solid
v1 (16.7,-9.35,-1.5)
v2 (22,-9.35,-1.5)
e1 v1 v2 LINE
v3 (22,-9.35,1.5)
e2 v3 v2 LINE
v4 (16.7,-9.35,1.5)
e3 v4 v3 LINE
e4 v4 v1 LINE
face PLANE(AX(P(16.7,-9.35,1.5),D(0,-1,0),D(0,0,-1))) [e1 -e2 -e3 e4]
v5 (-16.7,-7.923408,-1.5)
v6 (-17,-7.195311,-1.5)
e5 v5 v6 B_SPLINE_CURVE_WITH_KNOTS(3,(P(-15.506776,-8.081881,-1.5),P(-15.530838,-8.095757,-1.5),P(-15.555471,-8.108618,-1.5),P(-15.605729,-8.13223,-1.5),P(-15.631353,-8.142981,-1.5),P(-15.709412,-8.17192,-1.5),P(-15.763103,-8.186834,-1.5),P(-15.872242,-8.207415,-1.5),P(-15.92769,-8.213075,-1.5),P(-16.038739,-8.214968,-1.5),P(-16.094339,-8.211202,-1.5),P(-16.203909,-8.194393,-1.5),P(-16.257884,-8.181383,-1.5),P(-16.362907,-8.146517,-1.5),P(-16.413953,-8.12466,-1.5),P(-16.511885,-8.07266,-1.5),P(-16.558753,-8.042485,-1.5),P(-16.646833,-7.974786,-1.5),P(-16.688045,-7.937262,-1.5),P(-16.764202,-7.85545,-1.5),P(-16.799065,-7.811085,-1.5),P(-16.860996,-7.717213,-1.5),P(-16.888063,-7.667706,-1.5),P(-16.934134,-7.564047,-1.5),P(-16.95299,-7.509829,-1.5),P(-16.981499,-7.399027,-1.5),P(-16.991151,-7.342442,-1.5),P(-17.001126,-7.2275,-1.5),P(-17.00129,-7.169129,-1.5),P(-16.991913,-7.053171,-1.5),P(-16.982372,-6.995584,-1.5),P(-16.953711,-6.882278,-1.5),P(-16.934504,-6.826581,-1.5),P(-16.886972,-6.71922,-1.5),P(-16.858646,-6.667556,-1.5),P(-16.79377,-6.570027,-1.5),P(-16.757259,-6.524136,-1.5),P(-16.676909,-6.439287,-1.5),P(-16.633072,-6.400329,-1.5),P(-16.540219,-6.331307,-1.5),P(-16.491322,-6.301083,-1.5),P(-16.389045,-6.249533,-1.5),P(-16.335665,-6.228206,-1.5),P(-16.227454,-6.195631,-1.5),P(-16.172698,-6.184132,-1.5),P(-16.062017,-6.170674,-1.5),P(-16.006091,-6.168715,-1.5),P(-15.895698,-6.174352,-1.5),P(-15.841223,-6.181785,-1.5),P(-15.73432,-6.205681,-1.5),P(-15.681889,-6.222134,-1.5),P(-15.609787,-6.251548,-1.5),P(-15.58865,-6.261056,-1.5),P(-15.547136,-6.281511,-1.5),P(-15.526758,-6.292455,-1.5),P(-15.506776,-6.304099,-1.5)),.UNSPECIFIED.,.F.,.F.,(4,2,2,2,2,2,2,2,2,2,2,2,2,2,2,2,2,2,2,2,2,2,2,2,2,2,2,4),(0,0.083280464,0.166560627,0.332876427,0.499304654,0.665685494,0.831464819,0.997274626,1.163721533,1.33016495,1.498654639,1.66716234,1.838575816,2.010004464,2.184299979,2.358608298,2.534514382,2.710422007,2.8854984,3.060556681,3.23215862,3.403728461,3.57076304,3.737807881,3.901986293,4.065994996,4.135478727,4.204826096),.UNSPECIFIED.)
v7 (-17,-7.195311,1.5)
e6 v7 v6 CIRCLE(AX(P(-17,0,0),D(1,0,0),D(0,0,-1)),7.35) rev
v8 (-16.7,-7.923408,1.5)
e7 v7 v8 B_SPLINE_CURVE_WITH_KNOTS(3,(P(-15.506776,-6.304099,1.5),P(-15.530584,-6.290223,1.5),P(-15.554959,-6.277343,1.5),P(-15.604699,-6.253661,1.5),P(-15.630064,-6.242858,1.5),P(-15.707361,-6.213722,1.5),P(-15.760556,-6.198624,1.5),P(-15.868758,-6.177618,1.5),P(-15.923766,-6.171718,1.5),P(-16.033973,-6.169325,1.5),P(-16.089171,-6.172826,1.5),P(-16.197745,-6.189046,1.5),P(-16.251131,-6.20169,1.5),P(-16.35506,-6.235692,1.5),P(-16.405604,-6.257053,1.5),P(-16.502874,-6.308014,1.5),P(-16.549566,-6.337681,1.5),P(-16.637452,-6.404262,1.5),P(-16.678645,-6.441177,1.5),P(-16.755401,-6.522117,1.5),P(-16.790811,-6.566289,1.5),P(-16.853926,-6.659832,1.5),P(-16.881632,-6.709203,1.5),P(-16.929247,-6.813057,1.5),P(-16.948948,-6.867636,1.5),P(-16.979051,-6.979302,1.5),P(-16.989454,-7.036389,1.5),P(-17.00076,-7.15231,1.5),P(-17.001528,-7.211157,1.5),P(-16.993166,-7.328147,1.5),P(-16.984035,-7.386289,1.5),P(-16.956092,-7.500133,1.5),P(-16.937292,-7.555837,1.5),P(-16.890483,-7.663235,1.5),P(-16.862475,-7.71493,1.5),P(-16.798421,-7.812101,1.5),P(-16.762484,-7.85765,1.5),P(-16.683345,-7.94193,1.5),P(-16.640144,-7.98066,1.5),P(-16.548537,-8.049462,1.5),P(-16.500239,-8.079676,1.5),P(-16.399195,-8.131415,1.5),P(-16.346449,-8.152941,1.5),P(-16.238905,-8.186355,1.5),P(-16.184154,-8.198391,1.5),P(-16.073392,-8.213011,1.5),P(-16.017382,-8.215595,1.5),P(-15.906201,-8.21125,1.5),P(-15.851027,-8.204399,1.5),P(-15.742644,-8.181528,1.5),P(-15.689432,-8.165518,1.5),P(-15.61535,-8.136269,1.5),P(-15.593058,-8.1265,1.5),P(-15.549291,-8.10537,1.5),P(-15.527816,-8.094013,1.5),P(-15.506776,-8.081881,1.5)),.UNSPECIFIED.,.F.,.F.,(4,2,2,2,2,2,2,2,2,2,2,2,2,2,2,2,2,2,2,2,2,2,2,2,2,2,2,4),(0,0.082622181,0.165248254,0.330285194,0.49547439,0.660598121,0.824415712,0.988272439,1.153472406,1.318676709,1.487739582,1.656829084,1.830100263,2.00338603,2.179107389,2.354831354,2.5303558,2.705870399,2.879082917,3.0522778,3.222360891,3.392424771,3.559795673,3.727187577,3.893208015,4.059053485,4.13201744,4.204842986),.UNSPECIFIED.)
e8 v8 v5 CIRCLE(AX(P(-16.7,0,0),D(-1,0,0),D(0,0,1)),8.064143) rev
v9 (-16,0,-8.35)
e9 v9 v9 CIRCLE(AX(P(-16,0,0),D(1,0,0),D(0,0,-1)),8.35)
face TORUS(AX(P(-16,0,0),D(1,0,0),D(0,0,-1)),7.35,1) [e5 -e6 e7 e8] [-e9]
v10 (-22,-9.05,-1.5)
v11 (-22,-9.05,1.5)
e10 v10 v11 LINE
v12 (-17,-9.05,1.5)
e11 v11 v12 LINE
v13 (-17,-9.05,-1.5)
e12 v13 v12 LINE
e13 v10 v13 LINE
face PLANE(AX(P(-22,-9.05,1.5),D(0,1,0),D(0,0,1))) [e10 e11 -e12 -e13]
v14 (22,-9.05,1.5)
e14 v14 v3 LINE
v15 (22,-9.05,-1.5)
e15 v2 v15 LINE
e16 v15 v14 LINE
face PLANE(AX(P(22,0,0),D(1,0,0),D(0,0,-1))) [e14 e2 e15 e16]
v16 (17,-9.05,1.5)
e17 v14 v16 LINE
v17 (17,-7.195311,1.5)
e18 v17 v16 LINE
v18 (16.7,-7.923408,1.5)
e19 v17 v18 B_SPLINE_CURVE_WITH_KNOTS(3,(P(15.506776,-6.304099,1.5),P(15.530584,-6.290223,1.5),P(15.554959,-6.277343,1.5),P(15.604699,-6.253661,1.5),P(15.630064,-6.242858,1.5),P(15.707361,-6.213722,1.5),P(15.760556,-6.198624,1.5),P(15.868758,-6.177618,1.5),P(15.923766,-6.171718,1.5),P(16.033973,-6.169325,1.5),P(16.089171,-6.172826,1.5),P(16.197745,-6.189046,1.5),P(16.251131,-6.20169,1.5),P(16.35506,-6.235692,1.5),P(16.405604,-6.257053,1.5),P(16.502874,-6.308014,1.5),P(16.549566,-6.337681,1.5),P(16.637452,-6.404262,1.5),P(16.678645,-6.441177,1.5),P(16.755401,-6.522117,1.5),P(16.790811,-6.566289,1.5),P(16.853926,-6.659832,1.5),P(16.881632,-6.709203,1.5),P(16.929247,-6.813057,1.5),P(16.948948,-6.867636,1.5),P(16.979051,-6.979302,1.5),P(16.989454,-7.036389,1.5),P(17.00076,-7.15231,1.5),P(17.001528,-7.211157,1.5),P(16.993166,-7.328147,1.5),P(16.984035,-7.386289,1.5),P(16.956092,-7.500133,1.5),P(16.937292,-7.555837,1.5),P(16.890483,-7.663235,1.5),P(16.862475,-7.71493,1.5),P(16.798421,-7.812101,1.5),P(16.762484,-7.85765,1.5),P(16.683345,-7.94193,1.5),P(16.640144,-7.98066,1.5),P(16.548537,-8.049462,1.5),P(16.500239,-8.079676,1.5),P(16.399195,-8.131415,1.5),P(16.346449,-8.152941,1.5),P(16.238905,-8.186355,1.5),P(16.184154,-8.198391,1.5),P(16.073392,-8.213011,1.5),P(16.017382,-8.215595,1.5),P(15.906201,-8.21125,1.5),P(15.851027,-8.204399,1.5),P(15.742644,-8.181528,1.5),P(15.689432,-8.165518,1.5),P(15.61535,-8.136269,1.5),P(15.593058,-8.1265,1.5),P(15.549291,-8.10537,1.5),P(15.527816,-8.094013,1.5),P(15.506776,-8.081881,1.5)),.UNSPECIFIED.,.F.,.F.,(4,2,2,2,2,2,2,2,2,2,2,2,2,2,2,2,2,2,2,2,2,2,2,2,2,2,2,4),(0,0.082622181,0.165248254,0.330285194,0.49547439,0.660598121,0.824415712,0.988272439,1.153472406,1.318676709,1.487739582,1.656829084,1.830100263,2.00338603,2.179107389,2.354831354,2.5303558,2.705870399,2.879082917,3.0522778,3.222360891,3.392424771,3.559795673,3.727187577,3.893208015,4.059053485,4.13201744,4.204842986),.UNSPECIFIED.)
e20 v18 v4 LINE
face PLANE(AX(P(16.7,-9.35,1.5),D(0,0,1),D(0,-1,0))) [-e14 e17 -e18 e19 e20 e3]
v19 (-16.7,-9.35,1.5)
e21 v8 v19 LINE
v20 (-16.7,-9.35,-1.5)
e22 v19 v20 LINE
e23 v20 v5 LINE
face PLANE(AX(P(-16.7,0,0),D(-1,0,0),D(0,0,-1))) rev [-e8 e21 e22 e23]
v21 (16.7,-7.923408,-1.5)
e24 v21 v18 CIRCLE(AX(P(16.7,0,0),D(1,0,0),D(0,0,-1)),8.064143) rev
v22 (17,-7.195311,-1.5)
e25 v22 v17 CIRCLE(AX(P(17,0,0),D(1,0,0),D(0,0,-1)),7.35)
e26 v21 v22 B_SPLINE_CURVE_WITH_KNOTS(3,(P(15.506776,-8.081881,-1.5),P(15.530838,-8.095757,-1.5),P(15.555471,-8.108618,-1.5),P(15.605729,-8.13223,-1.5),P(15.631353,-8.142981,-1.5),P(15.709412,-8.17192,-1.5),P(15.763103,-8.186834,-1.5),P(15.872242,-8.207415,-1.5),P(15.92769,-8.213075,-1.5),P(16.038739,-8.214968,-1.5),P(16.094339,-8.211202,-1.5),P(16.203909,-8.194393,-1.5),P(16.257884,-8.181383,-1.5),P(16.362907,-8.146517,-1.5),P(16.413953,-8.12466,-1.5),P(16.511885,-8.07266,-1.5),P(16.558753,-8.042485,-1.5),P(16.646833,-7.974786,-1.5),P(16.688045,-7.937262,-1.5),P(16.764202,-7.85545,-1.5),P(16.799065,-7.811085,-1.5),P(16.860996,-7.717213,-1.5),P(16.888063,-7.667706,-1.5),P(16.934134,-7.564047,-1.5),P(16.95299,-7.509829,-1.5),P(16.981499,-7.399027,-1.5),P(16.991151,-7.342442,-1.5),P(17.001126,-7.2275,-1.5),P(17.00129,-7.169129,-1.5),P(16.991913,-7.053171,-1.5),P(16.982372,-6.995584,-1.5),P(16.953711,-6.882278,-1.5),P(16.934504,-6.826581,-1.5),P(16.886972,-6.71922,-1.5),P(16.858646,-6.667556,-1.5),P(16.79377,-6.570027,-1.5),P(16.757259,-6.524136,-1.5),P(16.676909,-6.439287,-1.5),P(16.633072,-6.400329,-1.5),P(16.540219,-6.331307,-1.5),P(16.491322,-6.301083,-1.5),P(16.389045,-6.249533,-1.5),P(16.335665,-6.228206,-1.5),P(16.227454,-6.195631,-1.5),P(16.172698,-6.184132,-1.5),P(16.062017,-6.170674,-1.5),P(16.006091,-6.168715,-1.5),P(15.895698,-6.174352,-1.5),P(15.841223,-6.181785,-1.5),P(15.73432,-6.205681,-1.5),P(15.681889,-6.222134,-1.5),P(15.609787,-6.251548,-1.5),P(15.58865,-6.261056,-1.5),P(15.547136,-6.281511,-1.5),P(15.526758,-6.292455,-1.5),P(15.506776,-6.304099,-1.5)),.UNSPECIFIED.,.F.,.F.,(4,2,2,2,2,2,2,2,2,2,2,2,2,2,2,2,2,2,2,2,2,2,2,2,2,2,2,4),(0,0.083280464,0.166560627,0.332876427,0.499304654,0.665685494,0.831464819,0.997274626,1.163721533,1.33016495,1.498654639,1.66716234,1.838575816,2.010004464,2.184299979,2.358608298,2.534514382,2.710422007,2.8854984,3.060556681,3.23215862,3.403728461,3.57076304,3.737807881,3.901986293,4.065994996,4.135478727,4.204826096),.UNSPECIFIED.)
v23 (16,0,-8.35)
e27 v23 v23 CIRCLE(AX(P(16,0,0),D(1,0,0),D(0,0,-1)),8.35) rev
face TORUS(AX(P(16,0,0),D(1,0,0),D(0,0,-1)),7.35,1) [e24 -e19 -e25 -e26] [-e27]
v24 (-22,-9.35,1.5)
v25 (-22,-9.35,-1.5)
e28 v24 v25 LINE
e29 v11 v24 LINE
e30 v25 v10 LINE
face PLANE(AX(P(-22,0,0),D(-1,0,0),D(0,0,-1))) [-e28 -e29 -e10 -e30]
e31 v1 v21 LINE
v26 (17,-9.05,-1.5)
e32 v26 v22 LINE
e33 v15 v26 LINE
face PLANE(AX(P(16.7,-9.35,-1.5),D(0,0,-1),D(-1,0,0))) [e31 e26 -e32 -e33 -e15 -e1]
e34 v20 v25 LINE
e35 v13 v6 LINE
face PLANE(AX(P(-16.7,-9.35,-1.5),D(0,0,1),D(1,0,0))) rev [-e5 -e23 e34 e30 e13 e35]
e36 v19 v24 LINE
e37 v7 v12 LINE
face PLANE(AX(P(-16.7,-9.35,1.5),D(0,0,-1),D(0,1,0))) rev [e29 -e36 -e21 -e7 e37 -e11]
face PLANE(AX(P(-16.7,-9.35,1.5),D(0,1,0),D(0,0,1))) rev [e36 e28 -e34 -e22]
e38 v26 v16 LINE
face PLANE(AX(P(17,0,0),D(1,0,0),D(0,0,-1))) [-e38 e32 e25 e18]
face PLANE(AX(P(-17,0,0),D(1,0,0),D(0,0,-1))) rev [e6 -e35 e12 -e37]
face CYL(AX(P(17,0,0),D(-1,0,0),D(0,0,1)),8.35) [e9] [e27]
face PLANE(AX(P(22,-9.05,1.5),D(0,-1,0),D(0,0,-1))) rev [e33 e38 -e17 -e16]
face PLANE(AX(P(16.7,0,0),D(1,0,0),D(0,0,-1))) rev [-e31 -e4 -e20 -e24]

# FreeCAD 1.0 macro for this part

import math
import FreeCAD as App
import Part
import Sketcher
Q = App.Units.Quantity


def edges_at(feature, points):
    """Names of the edges that pass closest to the given points."""
    edges = feature.Shape.Edges
    near = lambda p: min(range(len(edges)), key=lambda i: edges[i].distToShape(Part.Vertex(*p))[0])
    return sorted({f"Edge{near(p) + 1}" for p in points})


def add_polygon(sketch, points):
    """Adds a closed chain of lines whose ends are joined by coincident constraints."""
    first, n = sketch.GeometryCount, len(points)
    for a, b in zip(points, points[1:] + points[:1]):
        sketch.addGeometry(Part.LineSegment(App.Vector(*a, 0), App.Vector(*b, 0)), False)
    for i in range(n):
        sketch.addConstraint(Sketcher.Constraint("Coincident", first + i, 2, first + (i + 1) % n, 1))

doc = App.newDocument("Part")
params = doc.addObject("Spreadsheet::Sheet", "Params")
for row, (alias, value) in enumerate([
    ("sketch1_diameter", "16.7 mm"),
    ("pad1_length", "34 mm"),
    ("fillet_radius", "1 mm"),
    ("sketch2_height", "3 mm"),
    ("sketch2_radius", "7.35 mm"),
    ("pad2_length", "0.3 mm"),
    ("sketch3_height", "3 mm"),
    ("sketch3_width", "0.3 mm"),
    ("pad3_length", "5 mm"),
], start=1):
    params.set(f"A{row}", alias)
    params.set(f"B{row}", "=" + value)
    params.setAlias(f"B{row}", alias)

body = doc.addObject("PartDesign::Body", "Body")

# Sketch on YZ plane
sketch1 = body.newObject("Sketcher::SketchObject", "Sketch")
sketch1.AttachmentSupport = (doc.getObject("YZ_Plane"), [""])
sketch1.MapMode = "FlatFace"
sketch1.addGeometry(Part.Circle(App.Vector(0, 0, 0), App.Vector(0, 0, 1), 8), False)
sketch1.addConstraint([
    Sketcher.Constraint("Coincident", 0, 3, -1, 1),
    Sketcher.Constraint("Diameter", 0, Q("16.7 mm")),
])
sketch1.setExpression("Constraints[1]", "Params.sketch1_diameter")
pad1 = body.newObject("PartDesign::Pad", "Pad")
pad1.Profile = sketch1
pad1.setExpression("Length", "Params.pad1_length")
pad1.Midplane = True
doc.recompute()

fillet = body.newObject("PartDesign::Fillet", "Fillet")
fillet.Base = (pad1, edges_at(pad1, [(-17, 0, 8.35), (17, 0, 8.35)]))
fillet.setExpression("Radius", "Params.fillet_radius")

# Sketch on YZ plane
sketch2 = body.newObject("Sketcher::SketchObject", "Sketch001")
sketch2.AttachmentSupport = (doc.getObject("YZ_Plane"), [""])
sketch2.MapMode = "FlatFace"
sketch2.AttachmentOffset = App.Placement(App.Vector(0, 0, 17), App.Rotation())
sketch2.addGeometry([
    Part.LineSegment(App.Vector(-9.3, 1.5, 0), App.Vector(-9.3, -1.5, 0)),
    Part.LineSegment(App.Vector(-9.3, -1.5, 0), App.Vector(-7.2, -1.5, 0)),
    Part.ArcOfCircle(Part.Circle(App.Vector(0, 0, 0), App.Vector(0, 0, 1), 7.3), math.radians(168), math.radians(192)),
    Part.LineSegment(App.Vector(-7.2, 1.5, 0), App.Vector(-9.3, 1.5, 0)),
], False)
sketch2.addConstraint([
    Sketcher.Constraint("Coincident", 0, 2, 1, 1),
    Sketcher.Constraint("Coincident", 1, 2, 2, 2),
    Sketcher.Constraint("Coincident", 2, 1, 3, 1),
    Sketcher.Constraint("Coincident", 3, 2, 0, 1),
    Sketcher.Constraint("Vertical", 0),
    Sketcher.Constraint("Horizontal", 1),
    Sketcher.Constraint("Horizontal", 3),
    Sketcher.Constraint("Coincident", 2, 3, -1, 1),
    Sketcher.Constraint("Vertical", 1, 2, 2, 1),
    Sketcher.Constraint("DistanceY", 0, 2, 0, 1, Q("3 mm")),
    Sketcher.Constraint("Radius", 2, Q("7.35 mm")),
    Sketcher.Constraint("DistanceX", 0, 2, -1, 1, Q("9.35 mm")),
])
sketch2.setExpression("Constraints[9]", "Params.sketch2_height")
sketch2.setExpression("Constraints[10]", "Params.sketch2_radius")
pad2 = body.newObject("PartDesign::Pad", "Pad001")
pad2.Profile = sketch2
pad2.setExpression("Length", "Params.pad2_length")
pad2.Reversed = True

# Sketch on YZ plane
sketch3 = body.newObject("Sketcher::SketchObject", "Sketch002")
sketch3.AttachmentSupport = (doc.getObject("YZ_Plane"), [""])
sketch3.MapMode = "FlatFace"
sketch3.AttachmentOffset = App.Placement(App.Vector(0, 0, 17), App.Rotation())
add_polygon(sketch3, [(-9.05, 1.5), (-9.35, 1.5), (-9.35, -1.5), (-9.05, -1.5)])  # lines 0-3
sketch3.addConstraint([
    Sketcher.Constraint("Horizontal", 0),
    Sketcher.Constraint("Vertical", 1),
    Sketcher.Constraint("Horizontal", 2),
    Sketcher.Constraint("Vertical", 3),
    Sketcher.Constraint("DistanceY", 1, 2, 1, 1, Q("3 mm")),
    Sketcher.Constraint("DistanceX", 0, 2, 0, 1, Q("0.3 mm")),
    Sketcher.Constraint("DistanceY", -1, 1, 0, 2, Q("1.5 mm")),
    Sketcher.Constraint("DistanceX", 0, 2, -1, 1, Q("9.35 mm")),
])
sketch3.setExpression("Constraints[8]", "Params.sketch3_height")
sketch3.setExpression("Constraints[9]", "Params.sketch3_width")
pad3 = body.newObject("PartDesign::Pad", "Pad002")
pad3.Profile = sketch3
pad3.setExpression("Length", "Params.pad3_length")
doc.recompute()

mirrored = body.newObject("PartDesign::Mirrored", "Mirrored")
mirrored.Originals = [pad2, pad3]
mirrored.MirrorPlane = (doc.getObject("YZ_Plane"), [""])
body.Tip = mirrored

doc.recompute()
